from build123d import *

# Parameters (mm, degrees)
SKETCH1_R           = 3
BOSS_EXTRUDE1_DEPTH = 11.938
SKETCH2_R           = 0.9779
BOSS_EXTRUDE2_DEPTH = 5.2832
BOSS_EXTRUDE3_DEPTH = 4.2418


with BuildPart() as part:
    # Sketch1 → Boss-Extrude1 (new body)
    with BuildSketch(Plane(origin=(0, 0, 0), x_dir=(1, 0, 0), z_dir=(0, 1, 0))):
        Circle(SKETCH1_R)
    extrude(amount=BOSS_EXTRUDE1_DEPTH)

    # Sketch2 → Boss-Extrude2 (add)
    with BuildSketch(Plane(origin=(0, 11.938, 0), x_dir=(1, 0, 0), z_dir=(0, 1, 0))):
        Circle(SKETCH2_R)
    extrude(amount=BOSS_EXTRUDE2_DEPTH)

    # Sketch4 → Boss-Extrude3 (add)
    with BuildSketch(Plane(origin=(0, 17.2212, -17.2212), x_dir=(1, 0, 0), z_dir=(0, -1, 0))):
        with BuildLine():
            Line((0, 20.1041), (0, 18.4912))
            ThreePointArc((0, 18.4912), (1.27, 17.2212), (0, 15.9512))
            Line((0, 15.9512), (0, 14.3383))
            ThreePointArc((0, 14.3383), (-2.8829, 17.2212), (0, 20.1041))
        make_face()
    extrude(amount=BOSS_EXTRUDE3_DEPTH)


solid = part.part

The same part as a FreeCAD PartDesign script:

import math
import FreeCAD as App
import Part
import Sketcher
from FreeCAD import Vector
Q = App.Units.Quantity

doc = App.newDocument("Part")
body = doc.addObject("PartDesign::Body", "Body")

sketch1 = body.newObject("Sketcher::SketchObject", "Sketch")
sketch1.AttachmentSupport = (doc.getObject("XZ_Plane"), [""])
sketch1.MapMode = "FlatFace"
sketch1.addGeometry(Part.Circle(Vector(0, 0, 0), Vector(0, 0, 1), 3), False)
sketch1.addConstraint([
    Sketcher.Constraint("Coincident", 0, 3, -1, 1),
    Sketcher.Constraint("Diameter", 0, Q("6 mm")),
])
pad1 = body.newObject("PartDesign::Pad", "Pad")
pad1.Profile = sketch1
pad1.Length = Q("0.47 in")
pad1.Reversed = True

sketch2 = body.newObject("Sketcher::SketchObject", "Sketch001")
sketch2.AttachmentSupport = (doc.getObject("XZ_Plane"), [""])
sketch2.MapMode = "FlatFace"
sketch2.AttachmentOffset = App.Placement(Vector(0, 0, -0.47 * 25.4), App.Rotation())
sketch2.addGeometry(Part.Circle(Vector(0, 0, 0), Vector(0, 0, 1), 1), False)
sketch2.addConstraint([
    Sketcher.Constraint("Coincident", 0, 3, -1, 1),
    Sketcher.Constraint("Diameter", 0, Q("0.077 in")),
])
pad2 = body.newObject("PartDesign::Pad", "Pad001")
pad2.Profile = sketch2
pad2.Length = Q("0.208 in")
pad2.Reversed = True

sketch3 = body.newObject("Sketcher::SketchObject", "Sketch002")
sketch3.AttachmentSupport = (doc.getObject("XZ_Plane"), [""])
sketch3.MapMode = "FlatFace"
sketch3.AttachmentOffset = App.Placement(Vector(0, 0, -0.678 * 25.4), App.Rotation())
sketch3.addGeometry([
    Part.LineSegment(Vector(0, 1.3, 0), Vector(0, 2.9, 0)),
    Part.ArcOfCircle(Part.Circle(Vector(0, 0, 0), Vector(0, 0, 1), 2.9), math.radians(90), math.radians(270)),
    Part.LineSegment(Vector(0, -2.9, 0), Vector(0, -1.3, 0)),
    Part.ArcOfCircle(Part.Circle(Vector(0, 0, 0), Vector(0, 0, 1), 1.3), math.radians(-90), math.radians(90)),
], False)
sketch3.addConstraint([
    Sketcher.Constraint("Coincident", 0, 2, 1, 1),
    Sketcher.Constraint("Coincident", 1, 2, 2, 1),
    Sketcher.Constraint("Coincident", 2, 2, 3, 1),
    Sketcher.Constraint("Coincident", 3, 2, 0, 1),
    Sketcher.Constraint("Vertical", 0),
    Sketcher.Constraint("Vertical", 2),
    Sketcher.Constraint("Coincident", 1, 3, -1, 1),
    Sketcher.Constraint("Coincident", 3, 3, -1, 1),
    Sketcher.Constraint("PointOnObject", 0, 2, -2),
    Sketcher.Constraint("PointOnObject", 1, 2, -2),
    Sketcher.Constraint("Radius", 3, Q("0.05 in")),
    Sketcher.Constraint("Radius", 1, Q("0.1135 in")),
])
pad3 = body.newObject("PartDesign::Pad", "Pad002")
pad3.Profile = sketch3
pad3.Length = Q("0.167 in")

doc.recompute()
